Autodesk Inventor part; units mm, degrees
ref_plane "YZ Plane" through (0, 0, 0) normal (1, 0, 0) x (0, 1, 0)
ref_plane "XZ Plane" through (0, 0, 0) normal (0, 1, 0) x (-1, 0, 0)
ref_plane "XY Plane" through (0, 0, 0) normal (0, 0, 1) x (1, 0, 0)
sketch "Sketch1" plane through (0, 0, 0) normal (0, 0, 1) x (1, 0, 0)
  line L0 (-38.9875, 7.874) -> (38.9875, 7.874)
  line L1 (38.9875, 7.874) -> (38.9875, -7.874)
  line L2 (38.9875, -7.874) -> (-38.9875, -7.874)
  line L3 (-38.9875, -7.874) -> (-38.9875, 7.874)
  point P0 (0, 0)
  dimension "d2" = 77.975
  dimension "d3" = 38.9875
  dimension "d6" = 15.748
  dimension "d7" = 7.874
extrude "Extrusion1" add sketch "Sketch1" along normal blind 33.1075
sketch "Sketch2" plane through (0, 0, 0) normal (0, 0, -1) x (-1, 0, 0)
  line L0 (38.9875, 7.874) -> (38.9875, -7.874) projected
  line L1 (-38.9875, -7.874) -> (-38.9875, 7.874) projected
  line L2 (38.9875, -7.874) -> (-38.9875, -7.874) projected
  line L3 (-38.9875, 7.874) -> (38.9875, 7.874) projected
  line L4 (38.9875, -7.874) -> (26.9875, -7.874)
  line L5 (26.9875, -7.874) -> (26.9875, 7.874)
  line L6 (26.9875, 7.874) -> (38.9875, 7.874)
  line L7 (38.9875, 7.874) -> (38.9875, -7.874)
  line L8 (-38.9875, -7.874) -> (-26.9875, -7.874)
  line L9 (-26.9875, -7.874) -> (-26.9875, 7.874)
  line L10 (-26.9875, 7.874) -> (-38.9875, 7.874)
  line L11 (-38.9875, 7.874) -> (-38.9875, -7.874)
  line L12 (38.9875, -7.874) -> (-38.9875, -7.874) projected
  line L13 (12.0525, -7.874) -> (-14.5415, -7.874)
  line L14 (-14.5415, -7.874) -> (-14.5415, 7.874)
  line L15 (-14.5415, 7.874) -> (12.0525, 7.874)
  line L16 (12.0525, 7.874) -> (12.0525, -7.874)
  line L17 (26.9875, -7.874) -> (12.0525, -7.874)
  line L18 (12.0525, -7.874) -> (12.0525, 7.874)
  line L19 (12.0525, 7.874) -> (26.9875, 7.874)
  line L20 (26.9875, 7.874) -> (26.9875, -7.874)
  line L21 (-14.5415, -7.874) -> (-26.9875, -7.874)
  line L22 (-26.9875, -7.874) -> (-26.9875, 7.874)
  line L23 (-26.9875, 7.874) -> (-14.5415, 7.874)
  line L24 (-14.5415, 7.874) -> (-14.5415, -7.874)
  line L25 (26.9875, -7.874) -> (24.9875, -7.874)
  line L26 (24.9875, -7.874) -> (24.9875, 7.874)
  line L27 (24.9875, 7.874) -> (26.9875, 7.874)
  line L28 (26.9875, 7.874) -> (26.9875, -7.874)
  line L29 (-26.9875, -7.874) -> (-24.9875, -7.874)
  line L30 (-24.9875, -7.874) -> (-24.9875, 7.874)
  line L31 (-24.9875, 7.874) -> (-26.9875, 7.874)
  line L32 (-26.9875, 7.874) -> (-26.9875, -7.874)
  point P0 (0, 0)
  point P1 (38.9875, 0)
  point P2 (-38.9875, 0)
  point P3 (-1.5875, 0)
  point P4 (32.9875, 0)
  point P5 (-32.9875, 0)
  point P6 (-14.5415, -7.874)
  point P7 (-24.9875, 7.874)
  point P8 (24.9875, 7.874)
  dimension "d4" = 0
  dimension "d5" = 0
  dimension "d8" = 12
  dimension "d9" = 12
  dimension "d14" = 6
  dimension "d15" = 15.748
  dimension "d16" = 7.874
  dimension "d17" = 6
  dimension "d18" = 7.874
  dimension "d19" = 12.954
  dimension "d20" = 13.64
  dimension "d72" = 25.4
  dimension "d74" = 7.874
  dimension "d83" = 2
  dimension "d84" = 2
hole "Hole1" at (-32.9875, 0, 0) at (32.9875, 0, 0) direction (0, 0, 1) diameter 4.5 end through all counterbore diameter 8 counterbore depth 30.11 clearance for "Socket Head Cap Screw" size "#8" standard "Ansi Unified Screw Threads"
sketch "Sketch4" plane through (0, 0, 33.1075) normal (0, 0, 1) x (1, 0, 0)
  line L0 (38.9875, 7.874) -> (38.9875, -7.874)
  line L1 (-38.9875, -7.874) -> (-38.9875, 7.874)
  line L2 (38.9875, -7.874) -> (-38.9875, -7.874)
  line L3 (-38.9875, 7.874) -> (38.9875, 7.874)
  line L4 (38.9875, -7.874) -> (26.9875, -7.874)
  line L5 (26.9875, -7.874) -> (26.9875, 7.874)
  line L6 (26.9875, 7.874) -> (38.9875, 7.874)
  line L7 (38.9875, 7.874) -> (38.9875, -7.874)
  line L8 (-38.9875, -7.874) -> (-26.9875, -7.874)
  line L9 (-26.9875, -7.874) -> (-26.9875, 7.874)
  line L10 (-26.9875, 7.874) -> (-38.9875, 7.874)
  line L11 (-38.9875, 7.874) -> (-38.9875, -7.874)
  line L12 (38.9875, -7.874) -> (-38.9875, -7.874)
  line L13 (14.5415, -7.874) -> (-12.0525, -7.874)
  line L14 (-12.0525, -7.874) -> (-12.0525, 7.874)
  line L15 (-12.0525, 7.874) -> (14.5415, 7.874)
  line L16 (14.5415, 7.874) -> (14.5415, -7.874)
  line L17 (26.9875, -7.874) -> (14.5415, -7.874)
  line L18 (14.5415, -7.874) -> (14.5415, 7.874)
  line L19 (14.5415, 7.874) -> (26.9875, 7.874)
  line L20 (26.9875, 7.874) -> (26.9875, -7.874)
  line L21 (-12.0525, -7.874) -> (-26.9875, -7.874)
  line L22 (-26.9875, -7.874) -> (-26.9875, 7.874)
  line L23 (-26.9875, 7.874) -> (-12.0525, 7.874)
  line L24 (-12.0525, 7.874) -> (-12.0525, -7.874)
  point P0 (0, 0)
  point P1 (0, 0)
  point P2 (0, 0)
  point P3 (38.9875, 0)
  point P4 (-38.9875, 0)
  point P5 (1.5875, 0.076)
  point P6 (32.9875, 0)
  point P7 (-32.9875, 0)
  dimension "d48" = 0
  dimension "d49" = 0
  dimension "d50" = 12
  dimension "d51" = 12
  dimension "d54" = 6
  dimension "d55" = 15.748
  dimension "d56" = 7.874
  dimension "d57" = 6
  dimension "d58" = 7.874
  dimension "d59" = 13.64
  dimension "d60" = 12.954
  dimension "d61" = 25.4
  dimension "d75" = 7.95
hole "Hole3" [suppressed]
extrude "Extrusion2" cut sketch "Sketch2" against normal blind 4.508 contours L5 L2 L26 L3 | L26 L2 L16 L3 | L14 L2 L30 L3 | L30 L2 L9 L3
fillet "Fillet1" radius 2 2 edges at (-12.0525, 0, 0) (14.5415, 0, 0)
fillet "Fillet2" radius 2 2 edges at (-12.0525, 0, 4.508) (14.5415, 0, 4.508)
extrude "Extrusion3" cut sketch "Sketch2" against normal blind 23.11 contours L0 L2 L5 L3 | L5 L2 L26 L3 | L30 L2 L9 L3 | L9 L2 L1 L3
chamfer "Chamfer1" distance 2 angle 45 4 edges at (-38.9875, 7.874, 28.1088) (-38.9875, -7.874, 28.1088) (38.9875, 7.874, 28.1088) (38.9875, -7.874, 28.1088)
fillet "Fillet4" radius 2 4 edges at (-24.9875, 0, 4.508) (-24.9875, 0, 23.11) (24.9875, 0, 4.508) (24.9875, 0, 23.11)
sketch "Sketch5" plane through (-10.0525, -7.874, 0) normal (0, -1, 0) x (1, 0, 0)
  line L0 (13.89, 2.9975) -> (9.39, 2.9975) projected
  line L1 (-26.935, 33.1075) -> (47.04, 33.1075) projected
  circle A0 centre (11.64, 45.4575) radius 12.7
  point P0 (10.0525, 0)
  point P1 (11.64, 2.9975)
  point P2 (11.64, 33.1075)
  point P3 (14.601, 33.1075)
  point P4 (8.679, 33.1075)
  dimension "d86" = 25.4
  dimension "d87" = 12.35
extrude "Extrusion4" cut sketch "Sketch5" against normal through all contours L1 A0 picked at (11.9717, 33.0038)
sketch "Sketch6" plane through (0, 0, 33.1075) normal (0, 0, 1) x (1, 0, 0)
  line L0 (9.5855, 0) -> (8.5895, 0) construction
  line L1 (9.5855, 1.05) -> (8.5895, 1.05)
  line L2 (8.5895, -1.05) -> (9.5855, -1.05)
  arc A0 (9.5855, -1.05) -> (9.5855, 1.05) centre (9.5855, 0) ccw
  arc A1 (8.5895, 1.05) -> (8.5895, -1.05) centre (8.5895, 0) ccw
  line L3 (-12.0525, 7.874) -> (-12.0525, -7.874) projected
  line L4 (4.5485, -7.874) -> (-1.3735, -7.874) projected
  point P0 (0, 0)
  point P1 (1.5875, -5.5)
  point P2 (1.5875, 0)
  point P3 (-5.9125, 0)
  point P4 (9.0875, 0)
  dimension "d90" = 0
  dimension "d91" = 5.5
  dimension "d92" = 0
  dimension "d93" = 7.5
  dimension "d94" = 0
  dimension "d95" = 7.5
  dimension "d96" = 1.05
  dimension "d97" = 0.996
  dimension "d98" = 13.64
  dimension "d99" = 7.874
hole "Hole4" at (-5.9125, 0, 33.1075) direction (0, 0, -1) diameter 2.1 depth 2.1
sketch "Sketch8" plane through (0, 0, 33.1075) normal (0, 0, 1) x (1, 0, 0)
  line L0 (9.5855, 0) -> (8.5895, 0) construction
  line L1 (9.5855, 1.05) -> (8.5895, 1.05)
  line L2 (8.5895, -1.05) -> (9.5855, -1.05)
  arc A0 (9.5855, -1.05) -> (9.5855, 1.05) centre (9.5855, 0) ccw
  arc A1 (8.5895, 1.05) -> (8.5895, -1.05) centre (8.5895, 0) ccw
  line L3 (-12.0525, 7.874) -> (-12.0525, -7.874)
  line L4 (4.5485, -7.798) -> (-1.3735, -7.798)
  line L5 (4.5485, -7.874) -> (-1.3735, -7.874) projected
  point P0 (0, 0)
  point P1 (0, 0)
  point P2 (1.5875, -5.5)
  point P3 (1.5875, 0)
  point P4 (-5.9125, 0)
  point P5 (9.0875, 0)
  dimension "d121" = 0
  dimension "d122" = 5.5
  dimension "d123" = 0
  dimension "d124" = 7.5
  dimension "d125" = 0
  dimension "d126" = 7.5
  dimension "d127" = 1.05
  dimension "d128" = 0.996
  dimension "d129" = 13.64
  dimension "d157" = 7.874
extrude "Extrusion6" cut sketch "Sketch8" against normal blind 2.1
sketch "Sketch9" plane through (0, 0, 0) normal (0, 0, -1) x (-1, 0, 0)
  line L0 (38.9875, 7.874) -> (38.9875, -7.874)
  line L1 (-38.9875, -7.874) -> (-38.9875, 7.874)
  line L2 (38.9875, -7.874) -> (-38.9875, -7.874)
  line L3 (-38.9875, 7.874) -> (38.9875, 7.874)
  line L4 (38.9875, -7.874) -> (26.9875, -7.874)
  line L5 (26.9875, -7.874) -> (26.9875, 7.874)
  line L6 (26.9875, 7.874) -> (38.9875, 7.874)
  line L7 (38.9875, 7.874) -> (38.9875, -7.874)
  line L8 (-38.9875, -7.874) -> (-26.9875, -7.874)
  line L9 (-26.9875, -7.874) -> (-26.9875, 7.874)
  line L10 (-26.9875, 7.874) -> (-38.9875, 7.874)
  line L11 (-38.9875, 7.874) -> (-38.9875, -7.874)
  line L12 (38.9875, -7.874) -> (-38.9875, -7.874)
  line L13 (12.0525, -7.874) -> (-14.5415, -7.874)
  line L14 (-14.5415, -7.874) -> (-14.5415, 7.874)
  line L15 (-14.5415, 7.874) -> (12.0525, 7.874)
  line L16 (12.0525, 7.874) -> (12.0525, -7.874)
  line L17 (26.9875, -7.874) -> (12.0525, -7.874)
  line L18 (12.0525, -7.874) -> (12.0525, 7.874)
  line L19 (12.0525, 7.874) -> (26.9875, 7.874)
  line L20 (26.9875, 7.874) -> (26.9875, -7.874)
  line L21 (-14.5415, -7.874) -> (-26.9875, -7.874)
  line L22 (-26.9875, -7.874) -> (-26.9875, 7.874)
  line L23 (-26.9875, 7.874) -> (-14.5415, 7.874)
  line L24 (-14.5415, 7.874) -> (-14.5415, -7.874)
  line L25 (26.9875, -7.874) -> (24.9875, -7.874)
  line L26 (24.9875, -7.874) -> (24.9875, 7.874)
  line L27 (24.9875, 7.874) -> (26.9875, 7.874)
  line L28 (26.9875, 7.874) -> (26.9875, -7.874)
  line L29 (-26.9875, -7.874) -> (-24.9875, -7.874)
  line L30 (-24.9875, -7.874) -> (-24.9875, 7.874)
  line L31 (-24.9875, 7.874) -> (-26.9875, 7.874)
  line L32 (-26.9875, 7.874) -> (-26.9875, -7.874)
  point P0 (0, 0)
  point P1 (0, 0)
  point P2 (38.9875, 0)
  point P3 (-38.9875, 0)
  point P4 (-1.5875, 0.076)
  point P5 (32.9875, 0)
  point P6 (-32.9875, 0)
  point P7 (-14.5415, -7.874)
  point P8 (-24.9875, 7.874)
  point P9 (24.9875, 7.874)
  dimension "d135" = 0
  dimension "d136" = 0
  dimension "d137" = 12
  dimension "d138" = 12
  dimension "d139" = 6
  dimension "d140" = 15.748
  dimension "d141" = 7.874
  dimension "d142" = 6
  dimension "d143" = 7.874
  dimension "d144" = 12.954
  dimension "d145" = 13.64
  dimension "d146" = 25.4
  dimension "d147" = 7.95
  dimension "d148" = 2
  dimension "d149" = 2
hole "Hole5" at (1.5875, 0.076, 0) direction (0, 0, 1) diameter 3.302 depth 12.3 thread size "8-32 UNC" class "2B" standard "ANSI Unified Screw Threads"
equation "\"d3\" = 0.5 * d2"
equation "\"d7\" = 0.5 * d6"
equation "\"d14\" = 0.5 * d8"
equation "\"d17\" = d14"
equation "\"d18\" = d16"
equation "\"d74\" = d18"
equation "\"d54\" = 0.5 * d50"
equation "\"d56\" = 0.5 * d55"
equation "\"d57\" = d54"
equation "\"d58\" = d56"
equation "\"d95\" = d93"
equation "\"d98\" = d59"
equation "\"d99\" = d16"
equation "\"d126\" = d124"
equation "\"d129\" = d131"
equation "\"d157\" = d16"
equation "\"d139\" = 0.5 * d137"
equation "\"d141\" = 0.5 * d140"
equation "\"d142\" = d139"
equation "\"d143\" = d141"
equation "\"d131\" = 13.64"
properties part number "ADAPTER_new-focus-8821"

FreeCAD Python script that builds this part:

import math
import FreeCAD as App
import Part
import Sketcher


def edges_at(feature, points):
    """Names of the edges that pass closest to the given points."""
    edges = feature.Shape.Edges
    near = lambda p: min(range(len(edges)), key=lambda i: edges[i].distToShape(Part.Vertex(*p))[0])
    return sorted({f"Edge{near(p) + 1}" for p in points})


def add_polygon(sketch, points):
    """Adds a closed chain of lines whose ends are joined by coincident constraints."""
    first, n = sketch.GeometryCount, len(points)
    for a, b in zip(points, points[1:] + points[:1]):
        sketch.addGeometry(Part.LineSegment(App.Vector(*a, 0), App.Vector(*b, 0)), False)
    for i in range(n):
        sketch.addConstraint(Sketcher.Constraint("Coincident", first + i, 2, first + (i + 1) % n, 1))

doc = App.newDocument("Part")
body = doc.addObject("PartDesign::Body", "Body")

sketch1 = body.newObject("Sketcher::SketchObject", "Sketch")
sketch1.AttachmentSupport = (doc.getObject("XY_Plane"), [""])
sketch1.MapMode = "FlatFace"
add_polygon(sketch1, [(38.9875, 7.874), (-38.9875, 7.874), (-38.9875, -7.874), (38.9875, -7.874)])
sketch1.addConstraint([
    Sketcher.Constraint("Horizontal", 0),
    Sketcher.Constraint("Vertical", 1),
    Sketcher.Constraint("Horizontal", 2),
    Sketcher.Constraint("Vertical", 3),
    Sketcher.Constraint("Symmetric", 0, 2, 2, 2, -1, 1),
    Sketcher.Constraint("DistanceX", 0, 2, 0, 1, 77.975),
    Sketcher.Constraint("DistanceY", 1, 2, 1, 1, 15.748),
])
pad1 = body.newObject("PartDesign::Pad", "Pad")
pad1.Profile = sketch1
pad1.Length = 33.1075

sketch2 = body.newObject("Sketcher::SketchObject", "Sketch001")
sketch2.AttachmentSupport = (doc.getObject("XY_Plane"), [""])
sketch2.MapMode = "FlatFace"
sketch2.addGeometry([
    Part.Circle(App.Vector(-32.9875, 0, 0), App.Vector(0, 0, 1), 2.25),
    Part.Circle(App.Vector(32.9875, 0, 0), App.Vector(0, 0, 1), 2.25),
], False)
sketch2.addConstraint([
    Sketcher.Constraint("Equal", 0, 1),
    Sketcher.Constraint("Symmetric", 0, 3, 1, 3, -1, 1),
    Sketcher.Constraint("PointOnObject", 0, 3, -1),
    Sketcher.Constraint("Diameter", 0, 4.5),
    Sketcher.Constraint("DistanceX", 0, 3, 1, 3, 65.975),
])
doc.recompute()
hole = body.newObject("PartDesign::Hole", "Hole")
hole.Profile = sketch2
hole.ThreadType = "None"
hole.Diameter = 4.5
hole.DepthType = "ThroughAll"
hole.HoleCutType = "Counterbore"
hole.HoleCutDiameter = 8
hole.HoleCutDepth = 30.11
hole.Reversed = True

sketch3 = body.newObject("Sketcher::SketchObject", "Sketch002")
sketch3.AttachmentSupport = (doc.getObject("XY_Plane"), [""])
sketch3.MapMode = "FlatFace"
add_polygon(sketch3, [(-26.9875, -7.874), (-26.9875, 7.874), (-12.0525, 7.874), (-12.0525, -7.874)])
add_polygon(sketch3, [(14.5415, -7.874), (14.5415, 7.874), (26.9875, 7.874), (26.9875, -7.874)])
sketch3.addConstraint([
    Sketcher.Constraint("Vertical", 0),
    Sketcher.Constraint("Horizontal", 1),
    Sketcher.Constraint("Vertical", 2),
    Sketcher.Constraint("Horizontal", 3),
    Sketcher.Constraint("Vertical", 4),
    Sketcher.Constraint("Horizontal", 5),
    Sketcher.Constraint("Vertical", 6),
    Sketcher.Constraint("Horizontal", 7),
    Sketcher.Constraint("Symmetric", 3, 2, 5, 2, -1, 1),
    Sketcher.Constraint("Horizontal", 1, 2, 4, 2),
    Sketcher.Constraint("Horizontal", 3, 2, 6, 2),
    Sketcher.Constraint("DistanceY", 0, 1, 0, 2, 15.748),
    Sketcher.Constraint("DistanceX", 1, 1, 1, 2, 14.935),
    Sketcher.Constraint("DistanceX", 5, 1, 5, 2, 12.446),
    Sketcher.Constraint("DistanceX", 1, 2, 5, 2, 39.04),
])
pocket1 = body.newObject("PartDesign::Pocket", "Pocket")
pocket1.Profile = sketch3
pocket1.Length = 4.508
pocket1.Reversed = True
doc.recompute()

fillet = body.newObject("PartDesign::Fillet", "Fillet")
fillet.Base = (pocket1, edges_at(pocket1, [(-12.053, 0, 0), (14.541, 0, 0)]))
fillet.Radius = 2
doc.recompute()

fillet2 = body.newObject("PartDesign::Fillet", "Fillet001")
fillet2.Base = (fillet, edges_at(fillet, [(-12.053, 0, 4.508), (14.541, 0, 4.508)]))
fillet2.Radius = 2

sketch4 = body.newObject("Sketcher::SketchObject", "Sketch003")
sketch4.AttachmentSupport = (doc.getObject("XY_Plane"), [""])
sketch4.MapMode = "FlatFace"
add_polygon(sketch4, [(-38.9875, -7.874), (-38.9875, 7.874), (-24.9875, 7.874), (-24.9875, -7.874)])
add_polygon(sketch4, [(24.9875, -7.874), (24.9875, 7.874), (38.9875, 7.874), (38.9875, -7.874)])
sketch4.addConstraint([
    Sketcher.Constraint("Vertical", 0),
    Sketcher.Constraint("Horizontal", 1),
    Sketcher.Constraint("Vertical", 2),
    Sketcher.Constraint("Horizontal", 3),
    Sketcher.Constraint("Vertical", 4),
    Sketcher.Constraint("Horizontal", 5),
    Sketcher.Constraint("Vertical", 6),
    Sketcher.Constraint("Horizontal", 7),
    Sketcher.Constraint("Symmetric", 2, 2, 4, 2, -1, 1),
    Sketcher.Constraint("Symmetric", 0, 2, 6, 2, -1, 1),
    Sketcher.Constraint("Horizontal", 1, 2, 4, 2),
    Sketcher.Constraint("DistanceX", 1, 1, 1, 2, 14.0),
    Sketcher.Constraint("DistanceY", 0, 1, 0, 2, 15.748),
    Sketcher.Constraint("DistanceX", 1, 2, 4, 2, 49.975),
])
pocket2 = body.newObject("PartDesign::Pocket", "Pocket001")
pocket2.Profile = sketch4
pocket2.Length = 23.11
pocket2.Reversed = True
doc.recompute()

chamfer = body.newObject("PartDesign::Chamfer", "Chamfer")
chamfer.Base = (pocket2, edges_at(pocket2, [
    (-38.987, 7.874, 28.109),
    (-38.987, -7.874, 28.109),
    (38.987, 7.874, 28.109),
    (38.987, -7.874, 28.109),
]))
chamfer.Size = 2
doc.recompute()

fillet3 = body.newObject("PartDesign::Fillet", "Fillet002")
fillet3.Base = (chamfer, edges_at(chamfer, [
    (-24.988, 0, 4.508),
    (-24.988, 0, 23.11),
    (24.988, 0, 4.508),
    (24.988, 0, 23.11),
]))
fillet3.Radius = 2

sketch5 = body.newObject("Sketcher::SketchObject", "Sketch004")
sketch5.AttachmentSupport = (doc.getObject("XZ_Plane"), [""])
sketch5.MapMode = "FlatFace"
sketch5.AttachmentOffset = App.Placement(App.Vector(0, 0, 7.874), App.Rotation())
sketch5.addGeometry([
    Part.LineSegment(App.Vector(4.548496, 33.1075, 0), App.Vector(-1.373496, 33.1075, 0)),
    Part.ArcOfCircle(Part.Circle(App.Vector(1.5875, 45.4575, 0), App.Vector(0, 0, 1), 12.7), math.radians(-103.482557), math.radians(-76.517443)),
], False)
sketch5.addConstraint([
    Sketcher.Constraint("Coincident", 0, 1, 1, 2),
    Sketcher.Constraint("Coincident", 1, 1, 0, 2),
    Sketcher.Constraint("Horizontal", 0),
    Sketcher.Constraint("Radius", 1, 12.7),
    Sketcher.Constraint("DistanceY", 0, 1, 1, 3, 12.35),
    Sketcher.Constraint("DistanceX", -1, 1, 1, 3, 1.5875),
    Sketcher.Constraint("DistanceY", -1, 1, 1, 3, 45.4575),
])
pocket3 = body.newObject("PartDesign::Pocket", "Pocket002")
pocket3.Profile = sketch5
pocket3.Type = "ThroughAll"

sketch6 = body.newObject("Sketcher::SketchObject", "Sketch005")
sketch6.AttachmentSupport = (doc.getObject("XY_Plane"), [""])
sketch6.MapMode = "FlatFace"
sketch6.AttachmentOffset = App.Placement(App.Vector(0, 0, 33.1075), App.Rotation())
sketch6.addGeometry(Part.Circle(App.Vector(-5.9125, 0, 0), App.Vector(0, 0, 1), 1.05), False)
sketch6.addConstraint([
    Sketcher.Constraint("PointOnObject", 0, 3, -1),
    Sketcher.Constraint("Diameter", 0, 2.1),
    Sketcher.Constraint("DistanceX", 0, 3, -1, 1, 5.9125),
])
doc.recompute()
hole2 = body.newObject("PartDesign::Hole", "Hole001")
hole2.Profile = sketch6
hole2.ThreadType = "None"
hole2.Diameter = 2.1
hole2.DepthType = "Dimension"
hole2.Depth = 2.1
hole2.DrillPoint = "Flat"

sketch7 = body.newObject("Sketcher::SketchObject", "Sketch006")
sketch7.AttachmentSupport = (doc.getObject("XY_Plane"), [""])
sketch7.MapMode = "FlatFace"
sketch7.AttachmentOffset = App.Placement(App.Vector(0, 0, 33.1075), App.Rotation())
sketch7.addGeometry([
    Part.ArcOfCircle(Part.Circle(App.Vector(9.5855, 0, 0), App.Vector(0, 0, 1), 1.05), math.radians(-90), math.radians(90)),
    Part.LineSegment(App.Vector(9.5855, 1.05, 0), App.Vector(8.5895, 1.05, 0)),
    Part.ArcOfCircle(Part.Circle(App.Vector(8.5895, 0, 0), App.Vector(0, 0, 1), 1.05), math.radians(90), math.radians(270)),
    Part.LineSegment(App.Vector(8.5895, -1.05, 0), App.Vector(9.5855, -1.05, 0)),
], False)
sketch7.addConstraint([
    Sketcher.Constraint("Tangent", 0, 2, 1, 1),
    Sketcher.Constraint("Tangent", 1, 2, 2, 1),
    Sketcher.Constraint("Tangent", 2, 2, 3, 1),
    Sketcher.Constraint("Tangent", 3, 2, 0, 1),
    Sketcher.Constraint("Horizontal", 1),
    Sketcher.Constraint("Horizontal", 3),
    Sketcher.Constraint("PointOnObject", 0, 3, -1),
    Sketcher.Constraint("Radius", 0, 1.05),
    Sketcher.Constraint("DistanceX", 1, 2, 1, 1, 0.996),
    Sketcher.Constraint("DistanceX", -1, 1, 0, 3, 9.5855),
])
pocket4 = body.newObject("PartDesign::Pocket", "Pocket003")
pocket4.Profile = sketch7
pocket4.Length = 2.1

sketch8 = body.newObject("Sketcher::SketchObject", "Sketch007")
sketch8.AttachmentSupport = (doc.getObject("XY_Plane"), [""])
sketch8.MapMode = "FlatFace"
sketch8.addGeometry(Part.Circle(App.Vector(1.5875, 0.076, 0), App.Vector(0, 0, 1), 1.651), False)
sketch8.addConstraint([
    Sketcher.Constraint("Diameter", 0, 3.302),
    Sketcher.Constraint("DistanceY", -1, 1, 0, 3, 0.076),
    Sketcher.Constraint("DistanceX", -1, 1, 0, 3, 1.5875),
])
doc.recompute()
hole3 = body.newObject("PartDesign::Hole", "Hole002")
hole3.Profile = sketch8
hole3.ThreadType = "None"
hole3.Diameter = 3.302
hole3.DepthType = "Dimension"
hole3.Depth = 12.3
hole3.DrillPoint = "Flat"
hole3.Reversed = True

doc.recompute()
